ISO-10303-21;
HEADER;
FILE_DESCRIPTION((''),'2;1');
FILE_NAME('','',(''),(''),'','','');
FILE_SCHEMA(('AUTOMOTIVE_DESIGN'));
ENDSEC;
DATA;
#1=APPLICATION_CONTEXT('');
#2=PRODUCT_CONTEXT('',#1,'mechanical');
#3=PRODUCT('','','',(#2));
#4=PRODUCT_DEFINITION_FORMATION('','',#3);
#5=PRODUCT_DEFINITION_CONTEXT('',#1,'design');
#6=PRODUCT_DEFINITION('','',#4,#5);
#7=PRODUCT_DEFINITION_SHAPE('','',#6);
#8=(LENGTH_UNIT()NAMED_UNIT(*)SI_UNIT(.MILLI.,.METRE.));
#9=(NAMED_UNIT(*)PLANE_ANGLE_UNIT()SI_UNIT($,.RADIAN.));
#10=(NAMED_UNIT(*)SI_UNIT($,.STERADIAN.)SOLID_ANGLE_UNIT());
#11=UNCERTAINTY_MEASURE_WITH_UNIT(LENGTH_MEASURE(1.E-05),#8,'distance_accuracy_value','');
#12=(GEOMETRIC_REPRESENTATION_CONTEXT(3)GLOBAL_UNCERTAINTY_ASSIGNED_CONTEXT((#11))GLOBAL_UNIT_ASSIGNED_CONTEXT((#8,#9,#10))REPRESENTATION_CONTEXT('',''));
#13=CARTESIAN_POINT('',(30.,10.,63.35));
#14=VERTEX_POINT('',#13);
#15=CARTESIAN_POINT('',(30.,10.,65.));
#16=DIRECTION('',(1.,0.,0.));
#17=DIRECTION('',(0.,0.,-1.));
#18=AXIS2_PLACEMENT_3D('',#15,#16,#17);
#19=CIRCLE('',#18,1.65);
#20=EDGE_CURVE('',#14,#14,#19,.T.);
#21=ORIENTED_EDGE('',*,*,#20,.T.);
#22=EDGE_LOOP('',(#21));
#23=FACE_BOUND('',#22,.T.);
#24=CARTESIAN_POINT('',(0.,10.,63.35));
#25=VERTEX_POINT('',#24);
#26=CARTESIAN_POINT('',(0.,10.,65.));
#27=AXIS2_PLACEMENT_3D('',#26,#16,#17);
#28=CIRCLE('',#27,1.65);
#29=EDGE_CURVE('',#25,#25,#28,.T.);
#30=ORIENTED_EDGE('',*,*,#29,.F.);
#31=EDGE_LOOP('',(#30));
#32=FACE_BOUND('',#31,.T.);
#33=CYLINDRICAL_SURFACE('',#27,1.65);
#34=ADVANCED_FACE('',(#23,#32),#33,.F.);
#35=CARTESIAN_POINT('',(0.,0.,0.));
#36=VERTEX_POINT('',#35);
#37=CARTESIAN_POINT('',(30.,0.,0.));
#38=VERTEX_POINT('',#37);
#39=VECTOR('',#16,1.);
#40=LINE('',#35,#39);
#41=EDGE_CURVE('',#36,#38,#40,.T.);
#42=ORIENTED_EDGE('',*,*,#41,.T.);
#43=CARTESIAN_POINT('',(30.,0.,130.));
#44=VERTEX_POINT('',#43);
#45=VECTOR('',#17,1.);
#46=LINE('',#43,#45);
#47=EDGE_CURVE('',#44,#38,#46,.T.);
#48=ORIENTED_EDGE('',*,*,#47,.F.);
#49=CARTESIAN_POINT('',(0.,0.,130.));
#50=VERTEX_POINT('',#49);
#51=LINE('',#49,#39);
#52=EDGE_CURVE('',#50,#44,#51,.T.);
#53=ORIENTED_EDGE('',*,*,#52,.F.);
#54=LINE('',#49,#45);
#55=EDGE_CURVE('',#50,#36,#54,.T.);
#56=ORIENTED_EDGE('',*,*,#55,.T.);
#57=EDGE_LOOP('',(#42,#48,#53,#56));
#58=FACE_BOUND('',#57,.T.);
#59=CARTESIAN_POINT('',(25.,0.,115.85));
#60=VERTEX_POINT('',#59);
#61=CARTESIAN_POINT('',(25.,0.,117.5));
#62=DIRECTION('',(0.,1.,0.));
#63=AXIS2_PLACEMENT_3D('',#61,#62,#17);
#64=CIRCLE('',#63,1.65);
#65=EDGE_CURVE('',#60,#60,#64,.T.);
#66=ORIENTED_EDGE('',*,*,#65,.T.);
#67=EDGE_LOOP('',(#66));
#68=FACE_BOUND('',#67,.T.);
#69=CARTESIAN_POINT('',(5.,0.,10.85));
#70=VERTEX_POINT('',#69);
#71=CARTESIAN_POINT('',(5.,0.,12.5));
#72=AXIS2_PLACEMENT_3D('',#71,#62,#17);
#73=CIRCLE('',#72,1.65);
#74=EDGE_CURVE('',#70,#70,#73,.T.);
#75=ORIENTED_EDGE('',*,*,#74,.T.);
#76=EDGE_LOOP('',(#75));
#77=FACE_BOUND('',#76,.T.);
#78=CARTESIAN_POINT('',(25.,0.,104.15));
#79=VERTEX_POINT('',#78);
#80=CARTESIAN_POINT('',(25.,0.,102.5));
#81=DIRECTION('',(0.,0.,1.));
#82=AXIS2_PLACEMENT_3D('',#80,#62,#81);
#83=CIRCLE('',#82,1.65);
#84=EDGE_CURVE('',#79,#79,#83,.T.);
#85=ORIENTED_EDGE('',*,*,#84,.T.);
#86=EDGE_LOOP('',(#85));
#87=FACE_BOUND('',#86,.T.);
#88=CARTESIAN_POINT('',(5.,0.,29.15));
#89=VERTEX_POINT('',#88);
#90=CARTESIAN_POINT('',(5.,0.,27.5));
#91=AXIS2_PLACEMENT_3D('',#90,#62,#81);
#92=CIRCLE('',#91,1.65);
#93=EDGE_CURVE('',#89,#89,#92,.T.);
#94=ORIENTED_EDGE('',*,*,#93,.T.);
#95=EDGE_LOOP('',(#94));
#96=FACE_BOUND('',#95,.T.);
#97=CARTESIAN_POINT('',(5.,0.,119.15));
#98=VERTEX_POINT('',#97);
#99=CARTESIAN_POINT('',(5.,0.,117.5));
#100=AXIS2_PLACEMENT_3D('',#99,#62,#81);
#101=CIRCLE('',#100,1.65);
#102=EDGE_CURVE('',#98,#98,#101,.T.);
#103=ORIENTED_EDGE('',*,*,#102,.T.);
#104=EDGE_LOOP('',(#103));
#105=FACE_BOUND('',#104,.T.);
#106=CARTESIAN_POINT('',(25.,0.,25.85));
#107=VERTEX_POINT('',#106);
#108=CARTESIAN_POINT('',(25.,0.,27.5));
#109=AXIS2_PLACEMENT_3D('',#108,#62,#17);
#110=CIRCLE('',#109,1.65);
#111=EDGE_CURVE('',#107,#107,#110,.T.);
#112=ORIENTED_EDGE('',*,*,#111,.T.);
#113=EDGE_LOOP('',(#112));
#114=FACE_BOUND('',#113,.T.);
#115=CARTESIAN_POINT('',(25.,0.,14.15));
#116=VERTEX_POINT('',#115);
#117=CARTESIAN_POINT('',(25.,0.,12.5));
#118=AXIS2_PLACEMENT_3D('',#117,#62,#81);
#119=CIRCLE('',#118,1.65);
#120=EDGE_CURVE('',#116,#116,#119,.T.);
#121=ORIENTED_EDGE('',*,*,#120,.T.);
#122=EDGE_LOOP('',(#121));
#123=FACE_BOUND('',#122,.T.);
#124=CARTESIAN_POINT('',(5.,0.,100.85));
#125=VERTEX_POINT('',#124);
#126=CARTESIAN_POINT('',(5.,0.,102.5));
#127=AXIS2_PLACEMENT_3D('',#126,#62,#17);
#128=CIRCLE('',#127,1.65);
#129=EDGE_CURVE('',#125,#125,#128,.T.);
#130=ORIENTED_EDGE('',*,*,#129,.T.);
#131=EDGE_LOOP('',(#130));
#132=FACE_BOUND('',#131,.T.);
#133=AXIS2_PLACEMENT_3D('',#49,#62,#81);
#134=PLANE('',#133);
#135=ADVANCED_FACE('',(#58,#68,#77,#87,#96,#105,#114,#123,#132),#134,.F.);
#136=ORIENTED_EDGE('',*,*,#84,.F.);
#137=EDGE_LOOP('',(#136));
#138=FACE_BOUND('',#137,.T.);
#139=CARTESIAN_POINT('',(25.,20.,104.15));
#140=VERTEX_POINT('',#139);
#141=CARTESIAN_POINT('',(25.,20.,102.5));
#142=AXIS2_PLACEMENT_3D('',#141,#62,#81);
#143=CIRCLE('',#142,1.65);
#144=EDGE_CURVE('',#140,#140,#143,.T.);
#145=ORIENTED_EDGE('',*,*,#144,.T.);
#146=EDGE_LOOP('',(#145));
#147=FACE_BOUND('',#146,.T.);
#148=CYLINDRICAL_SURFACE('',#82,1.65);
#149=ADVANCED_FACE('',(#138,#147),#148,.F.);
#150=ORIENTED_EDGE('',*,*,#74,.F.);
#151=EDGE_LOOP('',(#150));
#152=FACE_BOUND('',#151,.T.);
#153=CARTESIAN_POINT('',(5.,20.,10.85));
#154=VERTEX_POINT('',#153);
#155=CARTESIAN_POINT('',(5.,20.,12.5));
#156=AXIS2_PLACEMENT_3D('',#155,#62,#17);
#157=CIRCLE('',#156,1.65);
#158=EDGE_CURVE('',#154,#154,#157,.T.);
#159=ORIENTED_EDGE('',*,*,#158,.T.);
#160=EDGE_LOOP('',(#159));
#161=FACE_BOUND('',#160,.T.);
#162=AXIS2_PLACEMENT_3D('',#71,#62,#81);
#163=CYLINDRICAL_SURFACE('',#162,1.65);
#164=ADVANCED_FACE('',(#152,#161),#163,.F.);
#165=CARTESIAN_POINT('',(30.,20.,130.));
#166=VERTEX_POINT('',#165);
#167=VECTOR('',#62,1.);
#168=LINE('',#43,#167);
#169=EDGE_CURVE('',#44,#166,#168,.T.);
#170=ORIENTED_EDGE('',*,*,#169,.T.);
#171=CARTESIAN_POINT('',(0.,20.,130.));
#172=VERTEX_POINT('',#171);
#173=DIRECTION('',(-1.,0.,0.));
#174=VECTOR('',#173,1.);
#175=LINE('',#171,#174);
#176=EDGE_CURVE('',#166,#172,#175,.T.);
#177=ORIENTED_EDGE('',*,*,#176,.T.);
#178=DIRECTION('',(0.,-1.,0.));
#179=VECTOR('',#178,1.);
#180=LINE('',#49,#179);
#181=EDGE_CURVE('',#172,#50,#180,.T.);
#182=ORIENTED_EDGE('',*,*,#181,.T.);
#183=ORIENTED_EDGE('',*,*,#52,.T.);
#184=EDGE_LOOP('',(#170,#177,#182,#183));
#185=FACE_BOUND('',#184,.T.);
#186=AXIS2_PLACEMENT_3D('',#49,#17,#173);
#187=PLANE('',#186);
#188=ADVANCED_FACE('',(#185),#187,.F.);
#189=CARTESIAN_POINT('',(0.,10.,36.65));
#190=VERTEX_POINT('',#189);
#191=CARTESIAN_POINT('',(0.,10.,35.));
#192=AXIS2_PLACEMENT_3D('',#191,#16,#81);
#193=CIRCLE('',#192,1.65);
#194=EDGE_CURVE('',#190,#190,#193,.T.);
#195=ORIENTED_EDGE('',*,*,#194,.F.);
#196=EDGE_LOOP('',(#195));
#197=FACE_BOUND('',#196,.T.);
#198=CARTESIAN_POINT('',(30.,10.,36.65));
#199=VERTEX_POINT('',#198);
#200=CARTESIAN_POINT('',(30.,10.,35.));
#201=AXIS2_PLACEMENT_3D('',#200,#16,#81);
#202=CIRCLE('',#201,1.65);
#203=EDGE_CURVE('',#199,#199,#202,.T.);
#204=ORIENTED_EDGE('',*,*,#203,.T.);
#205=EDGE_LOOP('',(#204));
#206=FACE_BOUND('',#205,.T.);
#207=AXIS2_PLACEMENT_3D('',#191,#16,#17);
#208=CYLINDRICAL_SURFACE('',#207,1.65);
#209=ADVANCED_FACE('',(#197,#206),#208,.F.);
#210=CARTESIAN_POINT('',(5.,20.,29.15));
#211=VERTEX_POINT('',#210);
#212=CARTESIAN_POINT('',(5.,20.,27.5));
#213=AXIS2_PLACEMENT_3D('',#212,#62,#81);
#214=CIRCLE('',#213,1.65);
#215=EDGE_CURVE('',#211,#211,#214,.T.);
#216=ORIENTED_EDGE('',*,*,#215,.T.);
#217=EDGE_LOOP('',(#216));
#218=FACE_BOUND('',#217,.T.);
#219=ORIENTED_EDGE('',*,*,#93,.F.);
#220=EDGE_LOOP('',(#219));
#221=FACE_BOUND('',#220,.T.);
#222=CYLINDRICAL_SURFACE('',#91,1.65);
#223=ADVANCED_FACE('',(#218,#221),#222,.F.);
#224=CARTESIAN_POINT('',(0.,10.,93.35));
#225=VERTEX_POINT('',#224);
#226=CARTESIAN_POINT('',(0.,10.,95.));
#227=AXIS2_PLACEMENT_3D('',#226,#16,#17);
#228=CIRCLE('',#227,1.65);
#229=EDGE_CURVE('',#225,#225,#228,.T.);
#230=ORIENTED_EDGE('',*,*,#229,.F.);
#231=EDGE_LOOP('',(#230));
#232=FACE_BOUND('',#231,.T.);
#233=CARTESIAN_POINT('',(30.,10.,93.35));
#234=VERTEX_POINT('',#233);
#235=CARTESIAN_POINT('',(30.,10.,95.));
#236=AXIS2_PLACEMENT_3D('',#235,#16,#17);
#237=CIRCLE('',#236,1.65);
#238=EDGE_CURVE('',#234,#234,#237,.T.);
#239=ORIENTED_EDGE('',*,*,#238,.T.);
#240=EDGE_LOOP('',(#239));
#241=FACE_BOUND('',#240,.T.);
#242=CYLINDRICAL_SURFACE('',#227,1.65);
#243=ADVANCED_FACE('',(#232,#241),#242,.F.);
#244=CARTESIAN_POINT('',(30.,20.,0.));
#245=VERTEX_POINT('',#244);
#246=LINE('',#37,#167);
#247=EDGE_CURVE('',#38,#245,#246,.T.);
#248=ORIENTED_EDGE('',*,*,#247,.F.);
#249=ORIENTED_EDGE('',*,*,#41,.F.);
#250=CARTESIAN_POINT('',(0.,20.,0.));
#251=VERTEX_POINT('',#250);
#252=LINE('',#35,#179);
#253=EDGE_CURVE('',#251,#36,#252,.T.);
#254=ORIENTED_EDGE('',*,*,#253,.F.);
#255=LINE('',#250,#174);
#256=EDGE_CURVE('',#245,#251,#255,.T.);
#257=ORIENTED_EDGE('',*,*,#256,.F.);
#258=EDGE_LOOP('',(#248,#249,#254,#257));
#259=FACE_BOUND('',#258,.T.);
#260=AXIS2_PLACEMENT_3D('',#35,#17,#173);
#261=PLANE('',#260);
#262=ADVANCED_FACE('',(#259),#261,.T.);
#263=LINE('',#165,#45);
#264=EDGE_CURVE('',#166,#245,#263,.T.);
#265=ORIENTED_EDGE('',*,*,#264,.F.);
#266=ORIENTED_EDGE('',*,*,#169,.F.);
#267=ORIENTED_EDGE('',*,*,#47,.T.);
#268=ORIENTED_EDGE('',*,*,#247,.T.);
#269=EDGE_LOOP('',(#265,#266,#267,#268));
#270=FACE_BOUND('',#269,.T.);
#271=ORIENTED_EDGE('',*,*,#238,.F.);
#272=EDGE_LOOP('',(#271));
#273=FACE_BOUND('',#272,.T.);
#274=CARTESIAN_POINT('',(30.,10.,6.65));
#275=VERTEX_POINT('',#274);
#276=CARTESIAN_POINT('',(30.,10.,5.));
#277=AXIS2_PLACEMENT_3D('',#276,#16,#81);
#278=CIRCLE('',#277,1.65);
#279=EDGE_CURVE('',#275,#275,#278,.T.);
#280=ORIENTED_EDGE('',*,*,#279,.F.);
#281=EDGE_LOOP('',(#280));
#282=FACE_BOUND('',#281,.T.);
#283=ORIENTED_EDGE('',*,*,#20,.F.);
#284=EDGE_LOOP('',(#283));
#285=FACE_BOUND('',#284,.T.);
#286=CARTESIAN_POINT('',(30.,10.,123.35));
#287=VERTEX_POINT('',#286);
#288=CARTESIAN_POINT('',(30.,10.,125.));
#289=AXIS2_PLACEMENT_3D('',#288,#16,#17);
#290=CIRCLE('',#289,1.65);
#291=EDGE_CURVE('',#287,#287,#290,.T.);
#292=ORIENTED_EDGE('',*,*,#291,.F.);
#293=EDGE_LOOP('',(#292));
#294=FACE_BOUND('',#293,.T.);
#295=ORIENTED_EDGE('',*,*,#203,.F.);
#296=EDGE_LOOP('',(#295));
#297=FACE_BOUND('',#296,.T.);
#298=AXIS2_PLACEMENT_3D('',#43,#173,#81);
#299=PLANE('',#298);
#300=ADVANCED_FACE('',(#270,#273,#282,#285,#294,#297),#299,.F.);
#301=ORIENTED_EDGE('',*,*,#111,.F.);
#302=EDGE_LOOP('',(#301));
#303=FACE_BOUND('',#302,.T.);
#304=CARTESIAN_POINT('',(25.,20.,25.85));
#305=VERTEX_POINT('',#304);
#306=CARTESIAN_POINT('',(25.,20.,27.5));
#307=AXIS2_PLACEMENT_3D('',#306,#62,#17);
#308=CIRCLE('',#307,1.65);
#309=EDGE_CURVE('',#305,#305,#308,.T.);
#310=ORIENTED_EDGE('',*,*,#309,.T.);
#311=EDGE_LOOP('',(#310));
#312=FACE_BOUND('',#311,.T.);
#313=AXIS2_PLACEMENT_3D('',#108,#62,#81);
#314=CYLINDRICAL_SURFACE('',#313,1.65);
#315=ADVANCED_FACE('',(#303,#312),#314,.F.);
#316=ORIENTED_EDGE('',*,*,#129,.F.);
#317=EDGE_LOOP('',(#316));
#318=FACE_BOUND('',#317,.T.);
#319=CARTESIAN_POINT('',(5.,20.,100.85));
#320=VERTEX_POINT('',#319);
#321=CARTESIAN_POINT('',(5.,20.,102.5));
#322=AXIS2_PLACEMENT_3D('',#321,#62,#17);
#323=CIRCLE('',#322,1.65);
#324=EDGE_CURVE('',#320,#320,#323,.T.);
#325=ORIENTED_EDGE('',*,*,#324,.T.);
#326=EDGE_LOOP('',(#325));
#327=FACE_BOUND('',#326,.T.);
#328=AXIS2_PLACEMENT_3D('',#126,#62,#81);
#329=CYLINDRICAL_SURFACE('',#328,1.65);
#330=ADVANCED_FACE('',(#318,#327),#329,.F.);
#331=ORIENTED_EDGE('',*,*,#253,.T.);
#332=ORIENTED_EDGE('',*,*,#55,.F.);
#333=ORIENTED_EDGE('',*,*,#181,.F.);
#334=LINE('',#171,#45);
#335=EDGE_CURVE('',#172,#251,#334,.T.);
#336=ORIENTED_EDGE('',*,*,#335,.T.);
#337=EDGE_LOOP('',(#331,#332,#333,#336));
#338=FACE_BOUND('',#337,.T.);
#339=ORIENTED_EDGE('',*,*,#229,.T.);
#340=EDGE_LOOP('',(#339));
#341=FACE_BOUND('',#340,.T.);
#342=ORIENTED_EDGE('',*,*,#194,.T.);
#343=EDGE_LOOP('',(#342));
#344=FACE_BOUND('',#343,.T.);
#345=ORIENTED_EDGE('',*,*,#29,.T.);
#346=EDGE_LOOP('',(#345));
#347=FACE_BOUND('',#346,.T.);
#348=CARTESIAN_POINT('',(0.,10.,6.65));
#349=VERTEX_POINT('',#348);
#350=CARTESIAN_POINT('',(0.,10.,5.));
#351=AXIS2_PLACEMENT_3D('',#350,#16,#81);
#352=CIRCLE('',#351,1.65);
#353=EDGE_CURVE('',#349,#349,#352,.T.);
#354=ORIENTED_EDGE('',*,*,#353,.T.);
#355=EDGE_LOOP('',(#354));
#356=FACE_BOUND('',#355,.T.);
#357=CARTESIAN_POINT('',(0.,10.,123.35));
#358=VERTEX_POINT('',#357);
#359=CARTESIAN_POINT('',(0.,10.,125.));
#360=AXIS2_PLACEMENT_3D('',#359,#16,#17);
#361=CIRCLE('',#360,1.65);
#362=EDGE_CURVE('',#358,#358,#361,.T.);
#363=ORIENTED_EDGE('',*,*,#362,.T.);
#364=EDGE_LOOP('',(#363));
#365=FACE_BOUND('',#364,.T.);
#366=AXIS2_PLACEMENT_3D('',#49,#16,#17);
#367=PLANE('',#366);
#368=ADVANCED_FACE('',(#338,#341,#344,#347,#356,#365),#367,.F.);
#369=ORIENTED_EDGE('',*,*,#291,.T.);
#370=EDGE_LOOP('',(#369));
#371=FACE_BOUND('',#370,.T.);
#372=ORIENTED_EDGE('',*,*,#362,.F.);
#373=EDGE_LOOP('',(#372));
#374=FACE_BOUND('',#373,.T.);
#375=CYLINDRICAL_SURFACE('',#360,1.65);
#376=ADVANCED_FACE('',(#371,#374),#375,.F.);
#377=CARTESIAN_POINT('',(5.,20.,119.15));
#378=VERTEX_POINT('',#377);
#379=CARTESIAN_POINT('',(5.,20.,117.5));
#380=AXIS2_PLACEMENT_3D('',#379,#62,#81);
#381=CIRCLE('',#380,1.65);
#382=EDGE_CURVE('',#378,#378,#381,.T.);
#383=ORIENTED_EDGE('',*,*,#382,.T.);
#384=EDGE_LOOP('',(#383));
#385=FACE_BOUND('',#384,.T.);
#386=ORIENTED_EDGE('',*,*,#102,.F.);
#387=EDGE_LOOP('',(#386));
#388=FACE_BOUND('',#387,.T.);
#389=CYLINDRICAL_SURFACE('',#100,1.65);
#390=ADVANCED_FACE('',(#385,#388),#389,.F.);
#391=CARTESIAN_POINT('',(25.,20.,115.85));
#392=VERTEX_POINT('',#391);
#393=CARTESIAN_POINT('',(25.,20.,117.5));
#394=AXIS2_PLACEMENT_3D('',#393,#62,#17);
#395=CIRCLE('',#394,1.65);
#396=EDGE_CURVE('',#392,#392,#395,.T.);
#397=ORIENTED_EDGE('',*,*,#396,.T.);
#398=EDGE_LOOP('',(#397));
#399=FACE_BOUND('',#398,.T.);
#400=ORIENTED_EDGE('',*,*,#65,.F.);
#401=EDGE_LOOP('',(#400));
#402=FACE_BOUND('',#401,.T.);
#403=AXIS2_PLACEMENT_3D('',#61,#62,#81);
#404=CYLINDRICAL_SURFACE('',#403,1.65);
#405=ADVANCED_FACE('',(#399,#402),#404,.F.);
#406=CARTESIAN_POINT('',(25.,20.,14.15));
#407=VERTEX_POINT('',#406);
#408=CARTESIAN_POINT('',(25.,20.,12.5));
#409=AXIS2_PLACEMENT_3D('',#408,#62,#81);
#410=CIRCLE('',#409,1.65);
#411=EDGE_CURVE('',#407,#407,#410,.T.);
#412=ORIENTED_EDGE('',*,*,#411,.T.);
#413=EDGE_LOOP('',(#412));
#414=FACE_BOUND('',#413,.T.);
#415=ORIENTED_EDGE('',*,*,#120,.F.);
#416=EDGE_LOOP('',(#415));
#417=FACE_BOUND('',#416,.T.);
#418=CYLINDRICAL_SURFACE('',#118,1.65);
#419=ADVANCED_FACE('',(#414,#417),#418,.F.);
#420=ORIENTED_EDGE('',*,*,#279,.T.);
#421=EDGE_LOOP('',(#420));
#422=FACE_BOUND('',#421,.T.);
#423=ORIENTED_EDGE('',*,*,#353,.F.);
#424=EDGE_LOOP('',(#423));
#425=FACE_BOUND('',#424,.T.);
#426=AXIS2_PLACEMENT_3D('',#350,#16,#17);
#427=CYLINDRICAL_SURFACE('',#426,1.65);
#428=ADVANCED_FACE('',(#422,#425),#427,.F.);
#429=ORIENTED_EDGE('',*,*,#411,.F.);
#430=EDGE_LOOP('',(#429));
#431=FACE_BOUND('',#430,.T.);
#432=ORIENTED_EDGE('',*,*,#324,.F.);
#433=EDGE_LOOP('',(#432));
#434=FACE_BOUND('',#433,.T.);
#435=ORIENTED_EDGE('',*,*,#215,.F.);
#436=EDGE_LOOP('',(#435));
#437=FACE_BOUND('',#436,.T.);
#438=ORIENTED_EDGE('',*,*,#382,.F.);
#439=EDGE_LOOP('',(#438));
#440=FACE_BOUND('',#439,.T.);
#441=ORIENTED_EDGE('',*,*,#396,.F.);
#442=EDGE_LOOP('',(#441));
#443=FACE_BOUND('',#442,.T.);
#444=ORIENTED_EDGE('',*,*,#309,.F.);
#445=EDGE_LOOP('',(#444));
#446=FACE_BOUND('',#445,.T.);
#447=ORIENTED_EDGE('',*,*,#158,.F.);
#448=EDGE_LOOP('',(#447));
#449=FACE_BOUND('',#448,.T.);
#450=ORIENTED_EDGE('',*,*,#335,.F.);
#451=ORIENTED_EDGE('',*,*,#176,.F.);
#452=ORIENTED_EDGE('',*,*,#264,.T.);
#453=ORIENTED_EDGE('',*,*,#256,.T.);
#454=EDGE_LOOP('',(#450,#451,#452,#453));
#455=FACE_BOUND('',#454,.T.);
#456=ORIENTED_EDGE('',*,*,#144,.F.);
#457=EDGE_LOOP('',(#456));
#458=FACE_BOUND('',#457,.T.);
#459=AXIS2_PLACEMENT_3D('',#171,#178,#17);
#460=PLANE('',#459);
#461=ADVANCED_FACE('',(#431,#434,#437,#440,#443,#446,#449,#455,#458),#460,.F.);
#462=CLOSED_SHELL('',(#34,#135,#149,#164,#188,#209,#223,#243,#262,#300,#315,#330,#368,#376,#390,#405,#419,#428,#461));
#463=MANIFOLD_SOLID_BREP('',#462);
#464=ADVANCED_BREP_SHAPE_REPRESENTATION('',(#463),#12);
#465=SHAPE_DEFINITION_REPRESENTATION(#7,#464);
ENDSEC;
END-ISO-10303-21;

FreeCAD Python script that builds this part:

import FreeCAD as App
import Part
import Sketcher
Q = App.Units.Quantity


def add_polygon(sketch, points):
    """Adds a closed chain of lines whose ends are joined by coincident constraints."""
    first, n = sketch.GeometryCount, len(points)
    for a, b in zip(points, points[1:] + points[:1]):
        sketch.addGeometry(Part.LineSegment(App.Vector(*a, 0), App.Vector(*b, 0)), False)
    for i in range(n):
        sketch.addConstraint(Sketcher.Constraint("Coincident", first + i, 2, first + (i + 1) % n, 1))

doc = App.newDocument("Part")
body = doc.addObject("PartDesign::Body", "Body")

# Sketch on XY plane
sketch1 = body.newObject("Sketcher::SketchObject", "Sketch")
sketch1.AttachmentSupport = (doc.getObject("XY_Plane"), [""])
sketch1.MapMode = "FlatFace"
add_polygon(sketch1, [(0, 20), (0, 0), (30, 0), (30, 20)])  # lines 0-3
sketch1.addConstraint([
    Sketcher.Constraint("Vertical", 0),
    Sketcher.Constraint("Horizontal", 1),
    Sketcher.Constraint("Vertical", 2),
    Sketcher.Constraint("Horizontal", 3),
    Sketcher.Constraint("Coincident", 0, 2, -1, 1),
    Sketcher.Constraint("DistanceX", 1, 1, 1, 2, Q("30 mm")),
    Sketcher.Constraint("DistanceY", 0, 2, 0, 1, Q("20 mm")),
])
pad1 = body.newObject("PartDesign::Pad", "Pad")
pad1.Profile = sketch1
pad1.Length = 130

# Sketch on XZ plane
sketch2 = body.newObject("Sketcher::SketchObject", "Sketch001")
sketch2.AttachmentSupport = (doc.getObject("XZ_Plane"), [""])
sketch2.MapMode = "FlatFace"
sketch2.AttachmentOffset = App.Placement(App.Vector(0, 0, -20), App.Rotation())
sketch2.addGeometry([
    Part.Circle(App.Vector(5, 117.5, 0), App.Vector(0, 0, 1), 1.65),  # 0
    Part.Circle(App.Vector(5, 102.5, 0), App.Vector(0, 0, 1), 1.65),  # 1
    Part.Circle(App.Vector(25, 102.5, 0), App.Vector(0, 0, 1), 1.65),  # 2
    Part.Circle(App.Vector(25, 117.5, 0), App.Vector(0, 0, 1), 1.65),  # 3
    Part.Circle(App.Vector(25, 12.5, 0), App.Vector(0, 0, 1), 1.65),  # 4
    Part.Circle(App.Vector(25, 27.5, 0), App.Vector(0, 0, 1), 1.65),  # 5
    Part.Circle(App.Vector(5, 27.5, 0), App.Vector(0, 0, 1), 1.65),  # 6
    Part.Circle(App.Vector(5, 12.5, 0), App.Vector(0, 0, 1), 1.65),  # 7
], False)
sketch2.addConstraint([
    Sketcher.Constraint("Equal", 0, 1),
    Sketcher.Constraint("Equal", 1, 2),
    Sketcher.Constraint("Equal", 2, 3),
    Sketcher.Constraint("Equal", 3, 4),
    Sketcher.Constraint("Equal", 4, 5),
    Sketcher.Constraint("Equal", 5, 6),
    Sketcher.Constraint("Equal", 6, 7),
    Sketcher.Constraint("Horizontal", 1, 3, 2, 3),
    Sketcher.Constraint("Horizontal", 0, 3, 3, 3),
    Sketcher.Constraint("Horizontal", 5, 3, 6, 3),
    Sketcher.Constraint("Horizontal", 4, 3, 7, 3),
    Sketcher.Constraint("Vertical", 0, 3, 1, 3),
    Sketcher.Constraint("Vertical", 2, 3, 3, 3),
    Sketcher.Constraint("Vertical", 3, 3, 4, 3),
    Sketcher.Constraint("Vertical", 4, 3, 5, 3),
    Sketcher.Constraint("Vertical", 1, 3, 6, 3),
    Sketcher.Constraint("Vertical", 6, 3, 7, 3),
    Sketcher.Constraint("Diameter", 0, Q("3.3 mm")),
    Sketcher.Constraint("DistanceX", -1, 1, 0, 3, Q("5 mm")),
    Sketcher.Constraint("DistanceX", -1, 1, 2, 3, Q("25 mm")),
    Sketcher.Constraint("DistanceY", 1, 3, 0, 3, Q("15 mm")),
    Sketcher.Constraint("DistanceY", 4, 3, 2, 3, Q("90 mm")),
    Sketcher.Constraint("DistanceY", 4, 3, 5, 3, Q("15 mm")),
    Sketcher.Constraint("DistanceY", -1, 1, 0, 3, Q("117.5 mm")),
])
pocket1 = body.newObject("PartDesign::Pocket", "Pocket")
pocket1.Profile = sketch2
pocket1.Type = "ThroughAll"
pocket1.Reversed = True

# Sketch on YZ plane
sketch3 = body.newObject("Sketcher::SketchObject", "Sketch002")
sketch3.AttachmentSupport = (doc.getObject("YZ_Plane"), [""])
sketch3.MapMode = "FlatFace"
sketch3.AttachmentOffset = App.Placement(App.Vector(0, 0, 30), App.Rotation())
sketch3.addGeometry([
    Part.Circle(App.Vector(10, 65, 0), App.Vector(0, 0, 1), 1.65),  # 0
    Part.Circle(App.Vector(10, 95, 0), App.Vector(0, 0, 1), 1.65),  # 1
    Part.Circle(App.Vector(10, 125, 0), App.Vector(0, 0, 1), 1.65),  # 2
    Part.Circle(App.Vector(10, 5, 0), App.Vector(0, 0, 1), 1.65),  # 3
    Part.Circle(App.Vector(10, 35, 0), App.Vector(0, 0, 1), 1.65),  # 4
], False)
sketch3.addConstraint([
    Sketcher.Constraint("Equal", 0, 1),
    Sketcher.Constraint("Equal", 1, 2),
    Sketcher.Constraint("Equal", 2, 3),
    Sketcher.Constraint("Equal", 3, 4),
    Sketcher.Constraint("Vertical", 0, 3, 1, 3),
    Sketcher.Constraint("Vertical", 1, 3, 2, 3),
    Sketcher.Constraint("Vertical", 2, 3, 3, 3),
    Sketcher.Constraint("Vertical", 3, 3, 4, 3),
    Sketcher.Constraint("Diameter", 0, Q("3.3 mm")),
    Sketcher.Constraint("DistanceX", -1, 1, 0, 3, Q("10 mm")),
    Sketcher.Constraint("DistanceY", -1, 1, 0, 3, Q("65 mm")),
    Sketcher.Constraint("DistanceY", -1, 1, 1, 3, Q("95 mm")),
    Sketcher.Constraint("DistanceY", -1, 1, 2, 3, Q("125 mm")),
    Sketcher.Constraint("DistanceY", -1, 1, 3, 3, Q("5 mm")),
    Sketcher.Constraint("DistanceY", -1, 1, 4, 3, Q("35 mm")),
])
pocket2 = body.newObject("PartDesign::Pocket", "Pocket001")
pocket2.Profile = sketch3
pocket2.Type = "ThroughAll"

doc.recompute()
